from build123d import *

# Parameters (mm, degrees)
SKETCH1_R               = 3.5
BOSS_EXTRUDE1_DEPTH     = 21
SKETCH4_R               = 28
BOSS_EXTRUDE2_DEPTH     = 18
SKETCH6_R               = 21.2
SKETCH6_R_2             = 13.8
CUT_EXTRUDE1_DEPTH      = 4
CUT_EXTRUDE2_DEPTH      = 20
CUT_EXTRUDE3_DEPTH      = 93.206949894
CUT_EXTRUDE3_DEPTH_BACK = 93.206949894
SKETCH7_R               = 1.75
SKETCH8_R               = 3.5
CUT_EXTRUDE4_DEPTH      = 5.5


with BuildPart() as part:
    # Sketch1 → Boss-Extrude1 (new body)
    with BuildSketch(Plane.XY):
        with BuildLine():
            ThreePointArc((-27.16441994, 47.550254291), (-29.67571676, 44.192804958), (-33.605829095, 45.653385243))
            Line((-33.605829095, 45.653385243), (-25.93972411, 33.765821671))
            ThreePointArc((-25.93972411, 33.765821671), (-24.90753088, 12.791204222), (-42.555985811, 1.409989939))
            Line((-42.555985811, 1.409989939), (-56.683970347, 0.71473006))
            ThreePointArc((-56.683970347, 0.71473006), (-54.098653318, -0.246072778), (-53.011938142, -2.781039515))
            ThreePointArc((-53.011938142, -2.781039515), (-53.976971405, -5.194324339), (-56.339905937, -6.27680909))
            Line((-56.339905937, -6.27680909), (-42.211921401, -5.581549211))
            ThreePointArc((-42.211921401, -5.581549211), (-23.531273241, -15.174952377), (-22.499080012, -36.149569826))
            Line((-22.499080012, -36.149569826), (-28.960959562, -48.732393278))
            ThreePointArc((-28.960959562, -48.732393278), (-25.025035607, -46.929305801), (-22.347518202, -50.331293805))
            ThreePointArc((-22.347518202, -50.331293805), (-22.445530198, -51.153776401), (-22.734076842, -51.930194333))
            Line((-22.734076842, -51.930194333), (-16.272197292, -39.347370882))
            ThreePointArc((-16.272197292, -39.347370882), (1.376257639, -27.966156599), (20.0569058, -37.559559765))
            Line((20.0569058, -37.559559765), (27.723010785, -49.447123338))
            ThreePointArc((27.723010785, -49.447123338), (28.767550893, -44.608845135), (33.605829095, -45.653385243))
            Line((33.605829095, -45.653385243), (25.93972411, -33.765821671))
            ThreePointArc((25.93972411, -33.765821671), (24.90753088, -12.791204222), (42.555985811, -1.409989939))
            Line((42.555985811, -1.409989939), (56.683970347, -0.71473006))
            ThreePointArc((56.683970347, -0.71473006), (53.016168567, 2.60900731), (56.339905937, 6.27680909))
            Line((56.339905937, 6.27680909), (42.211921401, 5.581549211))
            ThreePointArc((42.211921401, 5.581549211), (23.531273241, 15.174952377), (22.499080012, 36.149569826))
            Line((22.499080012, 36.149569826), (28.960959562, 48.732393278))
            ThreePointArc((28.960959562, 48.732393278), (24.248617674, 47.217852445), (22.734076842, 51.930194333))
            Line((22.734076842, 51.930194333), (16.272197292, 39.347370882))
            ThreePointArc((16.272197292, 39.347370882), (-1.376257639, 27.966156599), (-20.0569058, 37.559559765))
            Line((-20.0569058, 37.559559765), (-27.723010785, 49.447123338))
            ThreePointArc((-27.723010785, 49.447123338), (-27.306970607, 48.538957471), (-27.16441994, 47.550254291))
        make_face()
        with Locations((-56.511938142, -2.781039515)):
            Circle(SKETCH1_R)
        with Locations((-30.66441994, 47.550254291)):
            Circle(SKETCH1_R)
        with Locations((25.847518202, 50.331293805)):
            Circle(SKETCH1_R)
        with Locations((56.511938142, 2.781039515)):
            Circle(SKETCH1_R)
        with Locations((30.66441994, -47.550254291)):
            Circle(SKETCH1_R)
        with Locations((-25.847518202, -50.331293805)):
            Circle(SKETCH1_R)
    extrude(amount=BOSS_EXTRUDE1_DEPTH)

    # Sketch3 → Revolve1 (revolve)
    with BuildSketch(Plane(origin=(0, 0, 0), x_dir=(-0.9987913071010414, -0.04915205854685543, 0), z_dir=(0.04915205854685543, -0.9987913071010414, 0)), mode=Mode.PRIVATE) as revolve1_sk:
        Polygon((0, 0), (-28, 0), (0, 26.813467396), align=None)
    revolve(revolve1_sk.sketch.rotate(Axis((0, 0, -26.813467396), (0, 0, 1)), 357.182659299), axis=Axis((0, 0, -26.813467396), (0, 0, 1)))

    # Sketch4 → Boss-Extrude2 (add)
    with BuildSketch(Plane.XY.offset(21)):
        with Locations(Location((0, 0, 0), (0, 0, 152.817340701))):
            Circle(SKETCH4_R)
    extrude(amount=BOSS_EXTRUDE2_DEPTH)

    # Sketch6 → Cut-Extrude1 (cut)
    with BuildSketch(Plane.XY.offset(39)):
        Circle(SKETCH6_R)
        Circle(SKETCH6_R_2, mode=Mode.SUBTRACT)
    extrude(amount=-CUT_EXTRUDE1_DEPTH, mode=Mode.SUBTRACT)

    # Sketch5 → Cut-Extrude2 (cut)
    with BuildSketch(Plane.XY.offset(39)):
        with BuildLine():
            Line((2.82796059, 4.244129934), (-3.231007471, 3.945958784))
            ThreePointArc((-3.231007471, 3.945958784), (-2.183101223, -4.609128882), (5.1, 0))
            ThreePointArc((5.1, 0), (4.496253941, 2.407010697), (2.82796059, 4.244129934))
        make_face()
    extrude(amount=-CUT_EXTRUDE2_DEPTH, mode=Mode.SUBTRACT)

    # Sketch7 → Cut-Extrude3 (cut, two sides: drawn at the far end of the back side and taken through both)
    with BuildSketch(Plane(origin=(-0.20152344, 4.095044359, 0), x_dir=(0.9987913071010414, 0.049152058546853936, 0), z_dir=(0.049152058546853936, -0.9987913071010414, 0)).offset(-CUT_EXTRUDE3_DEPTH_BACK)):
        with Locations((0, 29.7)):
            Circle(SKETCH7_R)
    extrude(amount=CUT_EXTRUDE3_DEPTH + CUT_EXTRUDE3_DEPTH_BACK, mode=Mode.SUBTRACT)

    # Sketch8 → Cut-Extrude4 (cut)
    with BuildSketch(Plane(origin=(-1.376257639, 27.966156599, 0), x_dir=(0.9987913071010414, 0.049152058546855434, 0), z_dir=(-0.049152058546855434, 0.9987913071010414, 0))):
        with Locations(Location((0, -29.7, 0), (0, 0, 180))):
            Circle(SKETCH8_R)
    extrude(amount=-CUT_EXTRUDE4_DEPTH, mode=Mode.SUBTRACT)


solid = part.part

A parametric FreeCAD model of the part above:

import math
import FreeCAD as App
import Part
import Sketcher
Q = App.Units.Quantity

doc = App.newDocument("Part")
body = doc.addObject("PartDesign::Body", "Body")

# Sketch on XY plane
sketch1 = body.newObject("Sketcher::SketchObject", "Sketch")
sketch1.AttachmentSupport = (doc.getObject("XY_Plane"), [""])
sketch1.MapMode = "FlatFace"
sketch1.addGeometry([
    Part.LineSegment(App.Vector(-33.605829, 45.653385, 0), App.Vector(-25.939724, 33.765822, 0)),  # 0
    Part.ArcOfCircle(Part.Circle(App.Vector(-43.588179, 22.384607, 0), App.Vector(0, 0, 1), 21), math.radians(-87.182659), math.radians(32.817341)),  # 1
    Part.LineSegment(App.Vector(-42.555986, 1.40999, 0), App.Vector(-56.68397, 0.71473, 0)),  # 2
    Part.ArcOfCircle(Part.Circle(App.Vector(-56.511938, -2.78104, 0), App.Vector(0, 0, 1), 3.5), math.radians(92.817341), math.radians(272.817341)),  # 3
    Part.LineSegment(App.Vector(-56.339906, -6.276809, 0), App.Vector(-42.211921, -5.581549, 0)),  # 4
    Part.ArcOfCircle(Part.Circle(App.Vector(-41.179728, -26.556167, 0), App.Vector(0, 0, 1), 21), math.radians(-27.182659), math.radians(92.817341)),  # 5
    Part.LineSegment(App.Vector(-22.49908, -36.14957, 0), App.Vector(-28.96096, -48.732393, 0)),  # 6
    Part.ArcOfCircle(Part.Circle(App.Vector(-25.847518, -50.331294, 0), App.Vector(0, 0, 1), 3.5), math.radians(152.817341), math.radians(332.817341)),  # 7
    Part.LineSegment(App.Vector(-22.734077, -51.930194, 0), App.Vector(-16.272197, -39.347371, 0)),  # 8
    Part.ArcOfCircle(Part.Circle(App.Vector(2.408451, -48.940774, 0), App.Vector(0, 0, 1), 21), math.radians(32.817341), math.radians(152.817341)),  # 9
    Part.LineSegment(App.Vector(20.056906, -37.55956, 0), App.Vector(27.723011, -49.447123, 0)),  # 10
    Part.ArcOfCircle(Part.Circle(App.Vector(30.66442, -47.550254, 0), App.Vector(0, 0, 1), 3.5), math.radians(-147.182659), math.radians(32.817341)),  # 11
    Part.LineSegment(App.Vector(33.605829, -45.653385, 0), App.Vector(25.939724, -33.765822, 0)),  # 12
    Part.ArcOfCircle(Part.Circle(App.Vector(43.588179, -22.384607, 0), App.Vector(0, 0, 1), 21), math.radians(92.817341), math.radians(212.817341)),  # 13
    Part.LineSegment(App.Vector(42.555986, -1.40999, 0), App.Vector(56.68397, -0.71473, 0)),  # 14
    Part.ArcOfCircle(Part.Circle(App.Vector(56.511938, 2.78104, 0), App.Vector(0, 0, 1), 3.5), math.radians(-87.182659), math.radians(92.817341)),  # 15
    Part.LineSegment(App.Vector(56.339906, 6.276809, 0), App.Vector(42.211921, 5.581549, 0)),  # 16
    Part.ArcOfCircle(Part.Circle(App.Vector(41.179728, 26.556167, 0), App.Vector(0, 0, 1), 21), math.radians(152.817341), math.radians(272.817341)),  # 17
    Part.LineSegment(App.Vector(22.49908, 36.14957, 0), App.Vector(28.96096, 48.732393, 0)),  # 18
    Part.ArcOfCircle(Part.Circle(App.Vector(25.847518, 50.331294, 0), App.Vector(0, 0, 1), 3.5), math.radians(-27.182659), math.radians(152.817341)),  # 19
    Part.LineSegment(App.Vector(22.734077, 51.930194, 0), App.Vector(16.272197, 39.347371, 0)),  # 20
    Part.ArcOfCircle(Part.Circle(App.Vector(-2.408451, 48.940774, 0), App.Vector(0, 0, 1), 21), math.radians(-147.182659), math.radians(-27.182659)),  # 21
    Part.LineSegment(App.Vector(-20.056906, 37.55956, 0), App.Vector(-27.723011, 49.447123, 0)),  # 22
    Part.ArcOfCircle(Part.Circle(App.Vector(-30.66442, 47.550254, 0), App.Vector(0, 0, 1), 3.5), math.radians(32.817341), math.radians(212.817341)),  # 23
], False)
sketch1.addConstraint([
    Sketcher.Constraint("Tangent", 0, 2, 1, 2),
    Sketcher.Constraint("Tangent", 1, 1, 2, 1),
    Sketcher.Constraint("Tangent", 2, 2, 3, 1),
    Sketcher.Constraint("Tangent", 3, 2, 4, 1),
    Sketcher.Constraint("Tangent", 4, 2, 5, 2),
    Sketcher.Constraint("Tangent", 5, 1, 6, 1),
    Sketcher.Constraint("Tangent", 6, 2, 7, 1),
    Sketcher.Constraint("Tangent", 7, 2, 8, 1),
    Sketcher.Constraint("Tangent", 8, 2, 9, 2),
    Sketcher.Constraint("Tangent", 9, 1, 10, 1),
    Sketcher.Constraint("Tangent", 10, 2, 11, 1),
    Sketcher.Constraint("Tangent", 11, 2, 12, 1),
    Sketcher.Constraint("Tangent", 12, 2, 13, 2),
    Sketcher.Constraint("Tangent", 13, 1, 14, 1),
    Sketcher.Constraint("Tangent", 14, 2, 15, 1),
    Sketcher.Constraint("Tangent", 15, 2, 16, 1),
    Sketcher.Constraint("Tangent", 16, 2, 17, 2),
    Sketcher.Constraint("Tangent", 17, 1, 18, 1),
    Sketcher.Constraint("Tangent", 18, 2, 19, 1),
    Sketcher.Constraint("Tangent", 19, 2, 20, 1),
    Sketcher.Constraint("Tangent", 20, 2, 21, 2),
    Sketcher.Constraint("Tangent", 21, 1, 22, 1),
    Sketcher.Constraint("Tangent", 22, 2, 23, 1),
    Sketcher.Constraint("Tangent", 23, 2, 0, 1),
    Sketcher.Constraint("Equal", 1, 5),
    Sketcher.Constraint("Equal", 3, 7),
    Sketcher.Constraint("Equal", 5, 9),
    Sketcher.Constraint("Equal", 7, 11),
    Sketcher.Constraint("Equal", 9, 13),
    Sketcher.Constraint("Equal", 11, 15),
    Sketcher.Constraint("Equal", 13, 17),
    Sketcher.Constraint("Equal", 15, 19),
    Sketcher.Constraint("Equal", 17, 21),
    Sketcher.Constraint("Equal", 19, 23),
    Sketcher.Constraint("Symmetric", 1, 3, 13, 3, -1, 1),
    Sketcher.Constraint("Symmetric", 3, 3, 15, 3, -1, 1),
    Sketcher.Constraint("Symmetric", 5, 3, 17, 3, -1, 1),
    Sketcher.Constraint("Symmetric", 7, 3, 19, 3, -1, 1),
    Sketcher.Constraint("Symmetric", 9, 3, 21, 3, -1, 1),
    Sketcher.Constraint("Symmetric", 11, 3, 23, 3, -1, 1),
    Sketcher.Constraint("Parallel", 2, 4),
    Sketcher.Constraint("Parallel", 6, 8),
    Sketcher.Constraint("Parallel", 0, 10),
    Sketcher.Constraint("Equal", 0, 2),
    Sketcher.Constraint("Equal", 2, 4),
    Sketcher.Constraint("Equal", 4, 6),
    Sketcher.Constraint("Equal", 6, 8),
    Sketcher.Constraint("Equal", 8, 10),
    Sketcher.Constraint("Radius", 1, Q("21 mm")),
    Sketcher.Constraint("Radius", 3, Q("3.5 mm")),
    Sketcher.Constraint("DistanceY", 7, 3, 1, 3, Q("72.715901 mm")),
    Sketcher.Constraint("DistanceX", 1, 3, 11, 3, Q("74.252599 mm")),
    Sketcher.Constraint("DistanceY", 3, 2, 1, 1, Q("7.686799 mm")),
    Sketcher.Constraint("DistanceY", 10, 2, 12, 2, Q("15.681302 mm")),
])
pad1 = body.newObject("PartDesign::Pad", "Pad")
pad1.Profile = sketch1
pad1.Length = 21

# Sketch on an angled plane
sketch2 = body.newObject("Sketcher::SketchObject", "Sketch001")
sketch2.Placement = App.Placement(App.Vector(0, 0, 0), App.Rotation(App.Vector(-0.998791307, -0.049152059, 0), App.Vector(0, 0, -1), App.Vector(0.049152059, -0.998791307, 0), "ZXY"))
sketch2.addGeometry([
    Part.LineSegment(App.Vector(-28, 0, 0), App.Vector(0, 0, 0)),
    Part.LineSegment(App.Vector(0, 0, 0), App.Vector(0, 26.813467, 0)),
    Part.LineSegment(App.Vector(0, 26.813467, 0), App.Vector(-28, 0, 0)),
], False)
sketch2.addConstraint([
    Sketcher.Constraint("Coincident", 0, 2, 1, 1),
    Sketcher.Constraint("Coincident", 1, 2, 2, 1),
    Sketcher.Constraint("Coincident", 2, 2, 0, 1),
    Sketcher.Constraint("Horizontal", 0),
    Sketcher.Constraint("Vertical", 1),
    Sketcher.Constraint("Coincident", 0, 2, -1, 1),
    Sketcher.Constraint("DistanceX", 0, 1, 0, 2, Q("28 mm")),
    Sketcher.Constraint("DistanceY", 1, 1, 1, 2, Q("26.813467 mm")),
])
revolution = body.newObject("PartDesign::Revolution", "Revolution")
revolution.Profile = sketch2
revolution.ReferenceAxis = (sketch2, ["V_Axis"])
revolution.Angle = 360

# Sketch on XY plane
sketch3 = body.newObject("Sketcher::SketchObject", "Sketch002")
sketch3.AttachmentSupport = (doc.getObject("XY_Plane"), [""])
sketch3.MapMode = "FlatFace"
sketch3.AttachmentOffset = App.Placement(App.Vector(0, 0, 21), App.Rotation())
sketch3.addGeometry(Part.Circle(App.Vector(0, 0, 0), App.Vector(0, 0, 1), 28), False)
sketch3.addConstraint([
    Sketcher.Constraint("Coincident", 0, 3, -1, 1),
    Sketcher.Constraint("Diameter", 0, Q("56 mm")),
])
pad2 = body.newObject("PartDesign::Pad", "Pad001")
pad2.Profile = sketch3
pad2.Length = 18

# Sketch on XY plane
sketch4 = body.newObject("Sketcher::SketchObject", "Sketch003")
sketch4.AttachmentSupport = (doc.getObject("XY_Plane"), [""])
sketch4.MapMode = "FlatFace"
sketch4.AttachmentOffset = App.Placement(App.Vector(0, 0, 39), App.Rotation())
sketch4.addGeometry([
    Part.Circle(App.Vector(0, 0, 0), App.Vector(0, 0, 1), 21.2),
    Part.Circle(App.Vector(0, 0, 0), App.Vector(0, 0, 1), 13.8),
], False)
sketch4.addConstraint([
    Sketcher.Constraint("Coincident", 0, 3, -1, 1),
    Sketcher.Constraint("Coincident", 1, 3, -1, 1),
    Sketcher.Constraint("Diameter", 0, Q("42.4 mm")),
    Sketcher.Constraint("Diameter", 1, Q("27.6 mm")),
])
pocket1 = body.newObject("PartDesign::Pocket", "Pocket")
pocket1.Profile = sketch4
pocket1.Length = 4

# Sketch on XY plane
sketch5 = body.newObject("Sketcher::SketchObject", "Sketch004")
sketch5.AttachmentSupport = (doc.getObject("XY_Plane"), [""])
sketch5.MapMode = "FlatFace"
sketch5.AttachmentOffset = App.Placement(App.Vector(0, 0, 39), App.Rotation())
sketch5.addGeometry([
    Part.LineSegment(App.Vector(2.827961, 4.24413, 0), App.Vector(-3.231007, 3.945959, 0)),
    Part.ArcOfCircle(Part.Circle(App.Vector(0, 0, 0), App.Vector(0, 0, 1), 5.1), math.radians(129.311107), math.radians(360)),
    Part.ArcOfCircle(Part.Circle(App.Vector(0, 0, 0), App.Vector(0, 0, 1), 5.1), math.radians(0), math.radians(56.323574)),
], False)
sketch5.addConstraint([
    Sketcher.Constraint("Coincident", 0, 2, 1, 1),
    Sketcher.Constraint("Tangent", 1, 2, 2, 1),
    Sketcher.Constraint("Coincident", 2, 2, 0, 1),
    Sketcher.Constraint("Coincident", 1, 3, -1, 1),
    Sketcher.Constraint("Equal", 1, 2),
    Sketcher.Constraint("PointOnObject", 1, 2, -1),
    Sketcher.Constraint("Radius", 1, Q("5.1 mm")),
    Sketcher.Constraint("Distance", 0, Q("6.0663 mm")),
    Sketcher.Constraint("DistanceY", -1, 1, 0, 2, Q("3.945959 mm")),
])
pocket2 = body.newObject("PartDesign::Pocket", "Pocket001")
pocket2.Profile = sketch5
pocket2.Length = 20

# Sketch on an angled plane
sketch6 = body.newObject("Sketcher::SketchObject", "Sketch005")
sketch6.Placement = App.Placement(App.Vector(-0.201523, 4.095044, 0), App.Rotation(App.Vector(0.998791307, 0.049152059, 0), App.Vector(0, 0, 1), App.Vector(0.049152059, -0.998791307, 0), "ZXY"))
sketch6.addGeometry(Part.Circle(App.Vector(0, 29.7, 0), App.Vector(0, 0, 1), 1.75), False)
sketch6.addConstraint([
    Sketcher.Constraint("PointOnObject", 0, 3, -2),
    Sketcher.Constraint("Diameter", 0, Q("3.5 mm")),
    Sketcher.Constraint("DistanceY", -1, 1, 0, 3, Q("29.7 mm")),
])
pocket3 = body.newObject("PartDesign::Pocket", "Pocket002")
pocket3.Profile = sketch6
pocket3.Type = "ThroughAll"
pocket3.Midplane = True

# Sketch on an angled plane
sketch7 = body.newObject("Sketcher::SketchObject", "Sketch006")
sketch7.Placement = App.Placement(App.Vector(-1.376258, 27.966157, 0), App.Rotation(App.Vector(0.998791307, 0.049152059, 0), App.Vector(0, 0, -1), App.Vector(-0.049152059, 0.998791307, 0), "ZXY"))
sketch7.addGeometry(Part.Circle(App.Vector(0, -29.7, 0), App.Vector(0, 0, 1), 3.5), False)
sketch7.addConstraint([
    Sketcher.Constraint("PointOnObject", 0, 3, -2),
    Sketcher.Constraint("Diameter", 0, Q("7 mm")),
    Sketcher.Constraint("DistanceY", 0, 3, -1, 1, Q("29.7 mm")),
])
pocket4 = body.newObject("PartDesign::Pocket", "Pocket003")
pocket4.Profile = sketch7
pocket4.Length = 5.5

doc.recompute()
